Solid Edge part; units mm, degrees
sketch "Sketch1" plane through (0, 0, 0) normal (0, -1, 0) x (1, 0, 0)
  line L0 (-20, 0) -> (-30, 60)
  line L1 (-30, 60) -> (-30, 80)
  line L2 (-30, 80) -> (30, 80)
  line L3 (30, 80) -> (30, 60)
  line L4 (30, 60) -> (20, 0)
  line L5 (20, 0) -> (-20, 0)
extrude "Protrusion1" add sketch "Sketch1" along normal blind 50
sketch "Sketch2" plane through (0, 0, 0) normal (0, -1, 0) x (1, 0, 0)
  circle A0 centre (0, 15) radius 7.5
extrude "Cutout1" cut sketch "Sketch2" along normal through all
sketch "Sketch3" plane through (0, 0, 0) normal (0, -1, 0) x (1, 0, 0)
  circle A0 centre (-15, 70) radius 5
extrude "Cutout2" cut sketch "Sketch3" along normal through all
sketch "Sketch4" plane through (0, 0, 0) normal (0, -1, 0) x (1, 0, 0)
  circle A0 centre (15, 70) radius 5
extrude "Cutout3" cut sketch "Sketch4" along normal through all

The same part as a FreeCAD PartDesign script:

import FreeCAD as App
import Part
import Sketcher


def add_polygon(sketch, points):
    """Adds a closed chain of lines whose ends are joined by coincident constraints."""
    first, n = sketch.GeometryCount, len(points)
    for a, b in zip(points, points[1:] + points[:1]):
        sketch.addGeometry(Part.LineSegment(App.Vector(*a, 0), App.Vector(*b, 0)), False)
    for i in range(n):
        sketch.addConstraint(Sketcher.Constraint("Coincident", first + i, 2, first + (i + 1) % n, 1))

doc = App.newDocument("Part")
body = doc.addObject("PartDesign::Body", "Body")

# Sketch on XZ plane
sketch1 = doc.addObject("Sketcher::SketchObject", "Sketch")
body.addObject(sketch1)
sketch1.AttachmentSupport = (doc.XZ_Plane, [""])
sketch1.MapMode = "FlatFace"
add_polygon(sketch1, [(-30, 60), (-20, 0), (20, 0), (30, 60), (30, 80), (-30, 80)])  # lines 0-5
sketch1.addConstraint(Sketcher.Constraint("Horizontal", 1))
sketch1.addConstraint(Sketcher.Constraint("Vertical", 3))
sketch1.addConstraint(Sketcher.Constraint("Horizontal", 4))
sketch1.addConstraint(Sketcher.Constraint("Vertical", 5))
sketch1.addConstraint(Sketcher.Constraint("Symmetric", 0, 2, 1, 2, -1, 1))
sketch1.addConstraint(Sketcher.Constraint("Symmetric", 2, 2, 5, 2, -2))
sketch1.addConstraint(Sketcher.Constraint("DistanceX", 1, 1, 1, 2, 40.0))
sketch1.addConstraint(Sketcher.Constraint("DistanceX", 4, 2, 4, 1, 60.0))
sketch1.addConstraint(Sketcher.Constraint("DistanceY", 3, 1, 3, 2, 20.0))
sketch1.addConstraint(Sketcher.Constraint("DistanceY", -1, 1, 2, 2, 60.0))
pad1 = doc.addObject("PartDesign::Pad", "Pad")
body.addObject(pad1)
pad1.Profile = sketch1
pad1.Length = 50

# Sketch on XZ plane
sketch2 = doc.addObject("Sketcher::SketchObject", "Sketch001")
body.addObject(sketch2)
sketch2.AttachmentSupport = (doc.XZ_Plane, [""])
sketch2.MapMode = "FlatFace"
sketch2.addGeometry(Part.Circle(App.Vector(0, 15, 0), App.Vector(0, 0, 1), 8), False)
sketch2.addConstraint(Sketcher.Constraint("PointOnObject", 0, 3, -2))
sketch2.addConstraint(Sketcher.Constraint("Diameter", 0, 15.0))
sketch2.addConstraint(Sketcher.Constraint("DistanceY", -1, 1, 0, 3, 15.0))
pocket1 = doc.addObject("PartDesign::Pocket", "Pocket")
body.addObject(pocket1)
pocket1.Profile = sketch2
pocket1.Type = "ThroughAll"
pocket1.Reversed = True

# Sketch on XZ plane
sketch3 = doc.addObject("Sketcher::SketchObject", "Sketch002")
body.addObject(sketch3)
sketch3.AttachmentSupport = (doc.XZ_Plane, [""])
sketch3.MapMode = "FlatFace"
sketch3.addGeometry(Part.Circle(App.Vector(-15, 70, 0), App.Vector(0, 0, 1), 5), False)
sketch3.addConstraint(Sketcher.Constraint("Diameter", 0, 10.0))
sketch3.addConstraint(Sketcher.Constraint("DistanceX", 0, 3, -1, 1, 15.0))
sketch3.addConstraint(Sketcher.Constraint("DistanceY", -1, 1, 0, 3, 70.0))
pocket2 = doc.addObject("PartDesign::Pocket", "Pocket001")
body.addObject(pocket2)
pocket2.Profile = sketch3
pocket2.Type = "ThroughAll"
pocket2.Reversed = True

# Sketch on XZ plane
sketch4 = doc.addObject("Sketcher::SketchObject", "Sketch003")
body.addObject(sketch4)
sketch4.AttachmentSupport = (doc.XZ_Plane, [""])
sketch4.MapMode = "FlatFace"
sketch4.addGeometry(Part.Circle(App.Vector(15, 70, 0), App.Vector(0, 0, 1), 5), False)
sketch4.addConstraint(Sketcher.Constraint("Diameter", 0, 10.0))
sketch4.addConstraint(Sketcher.Constraint("DistanceX", -1, 1, 0, 3, 15.0))
sketch4.addConstraint(Sketcher.Constraint("DistanceY", -1, 1, 0, 3, 70.0))
pocket3 = doc.addObject("PartDesign::Pocket", "Pocket002")
body.addObject(pocket3)
pocket3.Profile = sketch4
pocket3.Type = "ThroughAll"
pocket3.Reversed = True

doc.recompute()
